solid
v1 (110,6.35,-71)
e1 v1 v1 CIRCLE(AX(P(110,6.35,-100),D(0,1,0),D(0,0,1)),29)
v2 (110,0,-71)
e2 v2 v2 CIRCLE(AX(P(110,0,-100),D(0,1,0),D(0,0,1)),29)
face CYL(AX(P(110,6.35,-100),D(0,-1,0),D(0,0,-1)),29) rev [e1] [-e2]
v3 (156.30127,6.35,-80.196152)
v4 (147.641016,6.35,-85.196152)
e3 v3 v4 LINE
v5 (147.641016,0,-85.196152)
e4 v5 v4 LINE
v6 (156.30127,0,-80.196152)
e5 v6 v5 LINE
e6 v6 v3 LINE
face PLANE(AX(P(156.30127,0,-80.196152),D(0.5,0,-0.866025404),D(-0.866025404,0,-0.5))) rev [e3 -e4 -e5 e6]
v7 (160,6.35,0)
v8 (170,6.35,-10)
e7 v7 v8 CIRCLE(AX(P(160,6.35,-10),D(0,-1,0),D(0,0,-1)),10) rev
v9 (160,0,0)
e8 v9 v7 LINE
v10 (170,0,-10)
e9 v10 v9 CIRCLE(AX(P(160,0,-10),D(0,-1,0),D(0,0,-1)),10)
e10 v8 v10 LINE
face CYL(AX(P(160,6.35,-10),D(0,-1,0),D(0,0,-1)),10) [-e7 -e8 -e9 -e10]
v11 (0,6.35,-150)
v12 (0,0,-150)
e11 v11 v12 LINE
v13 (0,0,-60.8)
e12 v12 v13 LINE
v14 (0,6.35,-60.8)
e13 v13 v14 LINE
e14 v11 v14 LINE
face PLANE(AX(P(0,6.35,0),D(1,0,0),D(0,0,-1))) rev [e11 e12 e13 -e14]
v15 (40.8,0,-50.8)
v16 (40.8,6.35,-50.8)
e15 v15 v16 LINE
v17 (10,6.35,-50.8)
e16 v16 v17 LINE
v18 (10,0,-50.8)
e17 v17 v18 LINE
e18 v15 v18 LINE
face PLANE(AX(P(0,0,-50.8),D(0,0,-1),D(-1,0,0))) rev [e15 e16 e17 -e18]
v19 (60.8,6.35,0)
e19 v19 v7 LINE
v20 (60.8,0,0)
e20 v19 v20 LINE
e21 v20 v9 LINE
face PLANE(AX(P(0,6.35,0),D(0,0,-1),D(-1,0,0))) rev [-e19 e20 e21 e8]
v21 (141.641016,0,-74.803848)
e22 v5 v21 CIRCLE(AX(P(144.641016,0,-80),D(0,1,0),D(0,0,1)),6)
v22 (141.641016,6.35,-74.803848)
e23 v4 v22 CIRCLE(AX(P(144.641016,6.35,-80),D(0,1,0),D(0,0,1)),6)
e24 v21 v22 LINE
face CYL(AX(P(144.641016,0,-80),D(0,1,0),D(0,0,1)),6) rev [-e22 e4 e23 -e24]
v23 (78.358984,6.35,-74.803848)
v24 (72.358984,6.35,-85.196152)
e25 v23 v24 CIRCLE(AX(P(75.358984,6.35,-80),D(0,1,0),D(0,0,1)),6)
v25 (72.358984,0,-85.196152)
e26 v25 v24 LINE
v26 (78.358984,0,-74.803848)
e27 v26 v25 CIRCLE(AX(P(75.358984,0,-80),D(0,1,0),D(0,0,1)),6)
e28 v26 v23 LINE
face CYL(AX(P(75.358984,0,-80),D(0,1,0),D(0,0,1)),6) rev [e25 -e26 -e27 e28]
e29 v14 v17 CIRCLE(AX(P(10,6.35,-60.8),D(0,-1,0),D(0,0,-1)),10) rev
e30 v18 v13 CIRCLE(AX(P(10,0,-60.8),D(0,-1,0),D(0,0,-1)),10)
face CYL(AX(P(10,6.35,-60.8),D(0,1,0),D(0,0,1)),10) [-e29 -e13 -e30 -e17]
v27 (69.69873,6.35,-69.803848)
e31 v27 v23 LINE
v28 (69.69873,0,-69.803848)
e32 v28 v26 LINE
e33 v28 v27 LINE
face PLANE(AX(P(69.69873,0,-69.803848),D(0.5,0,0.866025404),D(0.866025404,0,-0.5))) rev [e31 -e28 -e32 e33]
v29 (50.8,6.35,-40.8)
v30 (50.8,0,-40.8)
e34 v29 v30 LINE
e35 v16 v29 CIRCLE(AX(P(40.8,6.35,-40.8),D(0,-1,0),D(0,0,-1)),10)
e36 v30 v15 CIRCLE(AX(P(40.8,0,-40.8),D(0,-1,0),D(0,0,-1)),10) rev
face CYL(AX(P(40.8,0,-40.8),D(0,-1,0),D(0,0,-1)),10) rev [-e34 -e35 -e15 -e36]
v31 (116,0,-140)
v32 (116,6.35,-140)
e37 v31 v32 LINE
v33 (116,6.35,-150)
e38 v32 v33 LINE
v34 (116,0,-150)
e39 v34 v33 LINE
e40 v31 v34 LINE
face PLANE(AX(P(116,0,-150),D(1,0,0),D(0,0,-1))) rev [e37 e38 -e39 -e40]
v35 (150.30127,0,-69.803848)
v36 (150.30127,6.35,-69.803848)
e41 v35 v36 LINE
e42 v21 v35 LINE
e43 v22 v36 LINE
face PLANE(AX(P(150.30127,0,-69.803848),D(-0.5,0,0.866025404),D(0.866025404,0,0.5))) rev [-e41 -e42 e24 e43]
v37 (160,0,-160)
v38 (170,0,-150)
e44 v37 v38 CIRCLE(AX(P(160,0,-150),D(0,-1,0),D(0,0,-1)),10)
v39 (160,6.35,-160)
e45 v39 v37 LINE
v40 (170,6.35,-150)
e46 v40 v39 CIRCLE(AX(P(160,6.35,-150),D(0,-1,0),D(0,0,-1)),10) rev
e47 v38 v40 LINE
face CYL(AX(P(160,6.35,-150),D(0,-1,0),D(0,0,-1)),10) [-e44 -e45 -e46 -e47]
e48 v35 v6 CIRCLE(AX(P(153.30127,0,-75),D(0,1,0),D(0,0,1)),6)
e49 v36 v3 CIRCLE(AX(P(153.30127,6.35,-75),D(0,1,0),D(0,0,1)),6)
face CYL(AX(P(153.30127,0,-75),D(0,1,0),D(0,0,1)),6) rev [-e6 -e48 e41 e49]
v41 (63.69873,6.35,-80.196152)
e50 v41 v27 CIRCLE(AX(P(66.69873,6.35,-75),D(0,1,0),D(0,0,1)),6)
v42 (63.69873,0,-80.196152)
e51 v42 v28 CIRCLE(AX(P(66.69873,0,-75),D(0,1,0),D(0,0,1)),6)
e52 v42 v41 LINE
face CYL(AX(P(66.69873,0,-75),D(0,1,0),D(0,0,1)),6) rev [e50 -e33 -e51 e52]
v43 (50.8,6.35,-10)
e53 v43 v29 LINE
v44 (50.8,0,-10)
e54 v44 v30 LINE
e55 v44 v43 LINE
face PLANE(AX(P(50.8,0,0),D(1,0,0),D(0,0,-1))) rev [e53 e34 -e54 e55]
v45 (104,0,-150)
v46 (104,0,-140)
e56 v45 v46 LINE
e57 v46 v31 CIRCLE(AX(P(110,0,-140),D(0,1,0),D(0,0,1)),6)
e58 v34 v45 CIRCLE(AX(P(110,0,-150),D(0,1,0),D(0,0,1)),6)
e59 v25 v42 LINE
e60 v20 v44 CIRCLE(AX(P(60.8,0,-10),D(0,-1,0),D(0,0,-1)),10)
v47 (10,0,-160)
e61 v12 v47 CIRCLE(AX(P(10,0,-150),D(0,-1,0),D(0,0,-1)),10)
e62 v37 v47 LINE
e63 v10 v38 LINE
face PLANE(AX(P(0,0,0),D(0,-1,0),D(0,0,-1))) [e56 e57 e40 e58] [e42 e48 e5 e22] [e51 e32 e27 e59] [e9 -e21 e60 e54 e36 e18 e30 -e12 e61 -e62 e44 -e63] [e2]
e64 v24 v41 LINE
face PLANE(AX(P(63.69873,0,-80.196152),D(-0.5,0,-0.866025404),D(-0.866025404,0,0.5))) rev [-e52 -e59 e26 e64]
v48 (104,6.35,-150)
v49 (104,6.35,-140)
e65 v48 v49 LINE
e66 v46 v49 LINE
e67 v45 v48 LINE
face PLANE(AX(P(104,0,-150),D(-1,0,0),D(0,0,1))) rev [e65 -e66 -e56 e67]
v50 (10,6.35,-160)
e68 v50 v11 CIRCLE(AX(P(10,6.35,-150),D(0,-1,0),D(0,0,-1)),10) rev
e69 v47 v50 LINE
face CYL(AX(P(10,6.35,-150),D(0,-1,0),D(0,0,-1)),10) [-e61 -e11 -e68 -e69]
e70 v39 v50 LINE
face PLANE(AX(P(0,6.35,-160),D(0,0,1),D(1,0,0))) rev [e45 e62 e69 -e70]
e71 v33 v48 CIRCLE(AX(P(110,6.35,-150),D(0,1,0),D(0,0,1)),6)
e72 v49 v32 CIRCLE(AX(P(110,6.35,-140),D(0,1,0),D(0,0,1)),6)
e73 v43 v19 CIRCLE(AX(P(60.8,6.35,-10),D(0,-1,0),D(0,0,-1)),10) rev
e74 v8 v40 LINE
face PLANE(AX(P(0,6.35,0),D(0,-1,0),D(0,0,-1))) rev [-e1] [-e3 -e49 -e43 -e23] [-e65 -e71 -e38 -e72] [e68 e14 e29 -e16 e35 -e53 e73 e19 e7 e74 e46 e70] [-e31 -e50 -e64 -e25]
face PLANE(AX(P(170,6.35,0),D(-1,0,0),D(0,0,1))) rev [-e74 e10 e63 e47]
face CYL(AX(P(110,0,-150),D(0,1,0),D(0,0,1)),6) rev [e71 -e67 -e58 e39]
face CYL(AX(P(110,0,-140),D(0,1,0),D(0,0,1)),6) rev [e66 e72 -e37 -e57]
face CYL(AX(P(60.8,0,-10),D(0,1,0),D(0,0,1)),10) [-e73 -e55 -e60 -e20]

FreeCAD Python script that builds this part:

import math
import FreeCAD as App
import Part
import Sketcher
Q = App.Units.Quantity


def edges_at(feature, points):
    """Names of the edges that pass closest to the given points."""
    edges = feature.Shape.Edges
    near = lambda p: min(range(len(edges)), key=lambda i: edges[i].distToShape(Part.Vertex(*p))[0])
    return sorted({f"Edge{near(p) + 1}" for p in points})

doc = App.newDocument("Part")
body = doc.addObject("PartDesign::Body", "Body")

sketch1 = body.newObject("Sketcher::SketchObject", "Sketch")
sketch1.AttachmentSupport = (doc.getObject("XZ_Plane"), [""])
sketch1.MapMode = "FlatFace"
sketch1.addGeometry([
    Part.LineSegment(App.Vector(0, -160, 0), App.Vector(0, 0, 0)),
    Part.LineSegment(App.Vector(0, 0, 0), App.Vector(170, 0, 0)),
    Part.LineSegment(App.Vector(170, 0, 0), App.Vector(170, -160, 0)),
    Part.LineSegment(App.Vector(170, -160, 0), App.Vector(0, -160, 0)),
    Part.Circle(App.Vector(110, -100, 0), App.Vector(0, 0, 1), 29),
], False)
sketch1.addConstraint([
    Sketcher.Constraint("Coincident", 0, 2, 1, 1),
    Sketcher.Constraint("Coincident", 1, 2, 2, 1),
    Sketcher.Constraint("Coincident", 2, 2, 3, 1),
    Sketcher.Constraint("Coincident", 3, 2, 0, 1),
    Sketcher.Constraint("Vertical", 0),
    Sketcher.Constraint("Horizontal", 1),
    Sketcher.Constraint("Vertical", 2),
    Sketcher.Constraint("Horizontal", 3),
    Sketcher.Constraint("Coincident", 0, 2, -1, 1),
    Sketcher.Constraint("Diameter", 4, Q("58 mm")),
    Sketcher.Constraint("DistanceX", 1, 1, 1, 2, Q("170 mm")),
    Sketcher.Constraint("DistanceY", 0, 1, 0, 2, Q("160 mm")),
    Sketcher.Constraint("DistanceX", -1, 1, 4, 3, Q("110 mm")),
    Sketcher.Constraint("DistanceY", 4, 3, -1, 1, Q("100 mm")),
])
pad1 = body.newObject("PartDesign::Pad", "Pad")
pad1.Profile = sketch1
pad1.Length = 6.35
pad1.Reversed = True

sketch2 = body.newObject("Sketcher::SketchObject", "Sketch001")
sketch2.AttachmentSupport = (doc.getObject("XZ_Plane"), [""])
sketch2.MapMode = "FlatFace"
sketch2.AttachmentOffset = App.Placement(App.Vector(0, 0, -6.35), App.Rotation())
sketch2.addGeometry([
    Part.LineSegment(App.Vector(0, -50.8, 0), App.Vector(0, 0, 0)),
    Part.LineSegment(App.Vector(0, 0, 0), App.Vector(50.8, 0, 0)),
    Part.LineSegment(App.Vector(50.8, 0, 0), App.Vector(50.8, -50.8, 0)),
    Part.LineSegment(App.Vector(50.8, -50.8, 0), App.Vector(0, -50.8, 0)),
], False)
sketch2.addConstraint([
    Sketcher.Constraint("Coincident", 0, 2, 1, 1),
    Sketcher.Constraint("Coincident", 1, 2, 2, 1),
    Sketcher.Constraint("Coincident", 2, 2, 3, 1),
    Sketcher.Constraint("Coincident", 3, 2, 0, 1),
    Sketcher.Constraint("Vertical", 0),
    Sketcher.Constraint("Horizontal", 1),
    Sketcher.Constraint("Vertical", 2),
    Sketcher.Constraint("Horizontal", 3),
    Sketcher.Constraint("Coincident", 0, 2, -1, 1),
    Sketcher.Constraint("Equal", 3, 0),
    Sketcher.Constraint("DistanceX", 1, 1, 1, 2, Q("50.8 mm")),
])
pocket1 = body.newObject("PartDesign::Pocket", "Pocket")
pocket1.Profile = sketch2
pocket1.Type = "ThroughAll"
pocket1.Reversed = True
doc.recompute()

fillet = body.newObject("PartDesign::Fillet", "Fillet")
fillet.Base = (pocket1, edges_at(pocket1, [
    (0, 3.175, -50.8),
    (50.8, 3.175, -50.8),
    (50.8, 3.175, 0),
    (0, 3.175, -160),
    (170, 3.175, -160),
    (170, 3.175, 0),
]))
fillet.Radius = 10

sketch3 = body.newObject("Sketcher::SketchObject", "Sketch002")
sketch3.AttachmentSupport = (doc.getObject("XZ_Plane"), [""])
sketch3.MapMode = "FlatFace"
sketch3.AttachmentOffset = App.Placement(App.Vector(0, 0, -6.35), App.Rotation())
sketch3.addGeometry([
    Part.LineSegment(App.Vector(72.358984, -85.196152, 0), App.Vector(63.69873, -80.196152, 0)),
    Part.ArcOfCircle(Part.Circle(App.Vector(66.69873, -75, 0), App.Vector(0, 0, 1), 6), math.radians(60), math.radians(240)),
    Part.LineSegment(App.Vector(69.69873, -69.803848, 0), App.Vector(78.358984, -74.803848, 0)),
    Part.ArcOfCircle(Part.Circle(App.Vector(75.358984, -80, 0), App.Vector(0, 0, 1), 6), math.radians(-120), math.radians(60)),
    Part.LineSegment(App.Vector(141.641016, -74.803848, 0), App.Vector(150.30127, -69.803848, 0)),
    Part.ArcOfCircle(Part.Circle(App.Vector(153.30127, -75, 0), App.Vector(0, 0, 1), 6), math.radians(-60), math.radians(120)),
    Part.LineSegment(App.Vector(156.30127, -80.196152, 0), App.Vector(147.641016, -85.196152, 0)),
    Part.ArcOfCircle(Part.Circle(App.Vector(144.641016, -80, 0), App.Vector(0, 0, 1), 6), math.radians(120), math.radians(300)),
    Part.LineSegment(App.Vector(116, -140, 0), App.Vector(116, -150, 0)),
    Part.ArcOfCircle(Part.Circle(App.Vector(110, -150, 0), App.Vector(0, 0, 1), 6), math.radians(180), math.radians(360)),
    Part.LineSegment(App.Vector(104, -150, 0), App.Vector(104, -140, 0)),
    Part.ArcOfCircle(Part.Circle(App.Vector(110, -140, 0), App.Vector(0, 0, 1), 6), math.radians(0), math.radians(180)),
], False)
sketch3.addConstraint([
    Sketcher.Constraint("Tangent", 0, 2, 1, 2),
    Sketcher.Constraint("Tangent", 1, 1, 2, 1),
    Sketcher.Constraint("Tangent", 2, 2, 3, 2),
    Sketcher.Constraint("Tangent", 3, 1, 0, 1),
    Sketcher.Constraint("Tangent", 4, 2, 5, 2),
    Sketcher.Constraint("Tangent", 5, 1, 6, 1),
    Sketcher.Constraint("Tangent", 6, 2, 7, 2),
    Sketcher.Constraint("Tangent", 7, 1, 4, 1),
    Sketcher.Constraint("Tangent", 8, 2, 9, 2),
    Sketcher.Constraint("Tangent", 9, 1, 10, 1),
    Sketcher.Constraint("Tangent", 10, 2, 11, 2),
    Sketcher.Constraint("Tangent", 11, 1, 8, 1),
    Sketcher.Constraint("Vertical", 8),
    Sketcher.Constraint("Vertical", 10),
    Sketcher.Constraint("Equal", 1, 3),
    Sketcher.Constraint("Equal", 3, 5),
    Sketcher.Constraint("Equal", 5, 7),
    Sketcher.Constraint("Equal", 7, 9),
    Sketcher.Constraint("Horizontal", 1, 3, 5, 3),
    Sketcher.Constraint("Horizontal", 3, 3, 7, 3),
    Sketcher.Constraint("Horizontal", 1, 1, 4, 2),
    Sketcher.Constraint("Radius", 1, Q("6 mm")),
    Sketcher.Constraint("DistanceY", 8, 2, 8, 1, Q("10 mm")),
    Sketcher.Constraint("Angle", 0, Q("150 deg")),
    Sketcher.Constraint("Distance", 0, Q("10 mm")),
    Sketcher.Constraint("DistanceY", 1, 3, -1, 1, Q("75 mm")),
    Sketcher.Constraint("DistanceX", -1, 1, 9, 3, Q("110 mm")),
    Sketcher.Constraint("DistanceY", 9, 3, -1, 1, Q("150 mm")),
    Sketcher.Constraint("DistanceX", -1, 1, 1, 3, Q("66.69873 mm")),
    Sketcher.Constraint("DistanceX", -1, 1, 5, 3, Q("153.30127 mm")),
])
pocket2 = body.newObject("PartDesign::Pocket", "Pocket001")
pocket2.Profile = sketch3
pocket2.Type = "ThroughAll"
pocket2.Reversed = True

doc.recompute()
